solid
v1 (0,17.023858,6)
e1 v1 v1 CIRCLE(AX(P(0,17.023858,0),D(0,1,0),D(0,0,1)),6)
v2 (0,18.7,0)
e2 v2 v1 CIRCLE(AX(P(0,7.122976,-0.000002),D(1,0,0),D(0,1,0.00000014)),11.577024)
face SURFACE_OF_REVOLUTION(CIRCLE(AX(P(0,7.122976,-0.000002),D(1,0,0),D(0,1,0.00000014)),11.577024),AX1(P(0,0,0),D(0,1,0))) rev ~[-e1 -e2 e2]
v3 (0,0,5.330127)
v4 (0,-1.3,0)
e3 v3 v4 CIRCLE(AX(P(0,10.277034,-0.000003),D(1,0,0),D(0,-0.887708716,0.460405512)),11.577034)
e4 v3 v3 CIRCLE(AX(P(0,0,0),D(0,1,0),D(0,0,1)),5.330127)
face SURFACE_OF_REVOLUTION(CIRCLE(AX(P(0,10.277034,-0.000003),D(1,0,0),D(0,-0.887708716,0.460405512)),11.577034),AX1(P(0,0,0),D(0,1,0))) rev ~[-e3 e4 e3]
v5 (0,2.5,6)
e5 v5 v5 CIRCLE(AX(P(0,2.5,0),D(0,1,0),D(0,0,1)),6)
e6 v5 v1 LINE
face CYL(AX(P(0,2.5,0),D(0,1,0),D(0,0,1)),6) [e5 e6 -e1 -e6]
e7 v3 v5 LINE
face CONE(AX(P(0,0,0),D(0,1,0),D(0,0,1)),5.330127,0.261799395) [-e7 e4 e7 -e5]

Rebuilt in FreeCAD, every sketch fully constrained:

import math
import FreeCAD as App
import Part
import Sketcher
Q = App.Units.Quantity

doc = App.newDocument("Part")
body = doc.addObject("PartDesign::Body", "Body")

# Sketch on YZ plane
sketch1 = body.newObject("Sketcher::SketchObject", "Sketch")
sketch1.AttachmentSupport = (doc.getObject("YZ_Plane"), [""])
sketch1.MapMode = "FlatFace"
sketch1.addGeometry([
    Part.ArcOfCircle(Part.Circle(App.Vector(10.3, 0, 0), App.Vector(0, 0, 1), 11.6), math.radians(153), math.radians(180)),  # 0
    Part.LineSegment(App.Vector(-1.3, 0, 0), App.Vector(18.7, 0, 0)),  # 1
    Part.ArcOfCircle(Part.Circle(App.Vector(7.1, 0, 0), App.Vector(0, 0, 1), 11.6), math.radians(0), math.radians(31)),  # 2
    Part.LineSegment(App.Vector(17, 6, 0), App.Vector(2.5, 6, 0)),  # 3
    Part.LineSegment(App.Vector(2.5, 6, 0), App.Vector(0, 5.3, 0)),  # 4
], False)
sketch1.addConstraint([
    Sketcher.Constraint("Coincident", 0, 2, 1, 1),
    Sketcher.Constraint("Coincident", 1, 2, 2, 1),
    Sketcher.Constraint("Coincident", 2, 2, 3, 1),
    Sketcher.Constraint("Coincident", 3, 2, 4, 1),
    Sketcher.Constraint("Coincident", 4, 2, 0, 1),
    Sketcher.Constraint("Horizontal", 1),
    Sketcher.Constraint("Horizontal", 3),
    Sketcher.Constraint("PointOnObject", 2, 3, -1),
    Sketcher.Constraint("PointOnObject", 0, 2, -1),
    Sketcher.Constraint("PointOnObject", 4, 2, -2),
    Sketcher.Constraint("Horizontal", 0, 3, 2, 3),
    Sketcher.Constraint("DistanceX", 1, 1, 1, 2, Q("20 mm")),
    Sketcher.Constraint("Angle", 4, Q("-165 deg")),
    Sketcher.Constraint("DistanceY", -1, 1, 2, 2, Q("6 mm")),
    Sketcher.Constraint("DistanceX", 0, 2, -1, 1, Q("1.3 mm")),
    Sketcher.Constraint("DistanceX", -1, 1, 3, 2, Q("2.5 mm")),
    Sketcher.Constraint("Radius", 2, Q("11.577024 mm")),
])
revolution = body.newObject("PartDesign::Revolution", "Revolution")
revolution.Profile = sketch1
revolution.ReferenceAxis = (sketch1, ["H_Axis"])
revolution.Angle = 360

doc.recompute()
